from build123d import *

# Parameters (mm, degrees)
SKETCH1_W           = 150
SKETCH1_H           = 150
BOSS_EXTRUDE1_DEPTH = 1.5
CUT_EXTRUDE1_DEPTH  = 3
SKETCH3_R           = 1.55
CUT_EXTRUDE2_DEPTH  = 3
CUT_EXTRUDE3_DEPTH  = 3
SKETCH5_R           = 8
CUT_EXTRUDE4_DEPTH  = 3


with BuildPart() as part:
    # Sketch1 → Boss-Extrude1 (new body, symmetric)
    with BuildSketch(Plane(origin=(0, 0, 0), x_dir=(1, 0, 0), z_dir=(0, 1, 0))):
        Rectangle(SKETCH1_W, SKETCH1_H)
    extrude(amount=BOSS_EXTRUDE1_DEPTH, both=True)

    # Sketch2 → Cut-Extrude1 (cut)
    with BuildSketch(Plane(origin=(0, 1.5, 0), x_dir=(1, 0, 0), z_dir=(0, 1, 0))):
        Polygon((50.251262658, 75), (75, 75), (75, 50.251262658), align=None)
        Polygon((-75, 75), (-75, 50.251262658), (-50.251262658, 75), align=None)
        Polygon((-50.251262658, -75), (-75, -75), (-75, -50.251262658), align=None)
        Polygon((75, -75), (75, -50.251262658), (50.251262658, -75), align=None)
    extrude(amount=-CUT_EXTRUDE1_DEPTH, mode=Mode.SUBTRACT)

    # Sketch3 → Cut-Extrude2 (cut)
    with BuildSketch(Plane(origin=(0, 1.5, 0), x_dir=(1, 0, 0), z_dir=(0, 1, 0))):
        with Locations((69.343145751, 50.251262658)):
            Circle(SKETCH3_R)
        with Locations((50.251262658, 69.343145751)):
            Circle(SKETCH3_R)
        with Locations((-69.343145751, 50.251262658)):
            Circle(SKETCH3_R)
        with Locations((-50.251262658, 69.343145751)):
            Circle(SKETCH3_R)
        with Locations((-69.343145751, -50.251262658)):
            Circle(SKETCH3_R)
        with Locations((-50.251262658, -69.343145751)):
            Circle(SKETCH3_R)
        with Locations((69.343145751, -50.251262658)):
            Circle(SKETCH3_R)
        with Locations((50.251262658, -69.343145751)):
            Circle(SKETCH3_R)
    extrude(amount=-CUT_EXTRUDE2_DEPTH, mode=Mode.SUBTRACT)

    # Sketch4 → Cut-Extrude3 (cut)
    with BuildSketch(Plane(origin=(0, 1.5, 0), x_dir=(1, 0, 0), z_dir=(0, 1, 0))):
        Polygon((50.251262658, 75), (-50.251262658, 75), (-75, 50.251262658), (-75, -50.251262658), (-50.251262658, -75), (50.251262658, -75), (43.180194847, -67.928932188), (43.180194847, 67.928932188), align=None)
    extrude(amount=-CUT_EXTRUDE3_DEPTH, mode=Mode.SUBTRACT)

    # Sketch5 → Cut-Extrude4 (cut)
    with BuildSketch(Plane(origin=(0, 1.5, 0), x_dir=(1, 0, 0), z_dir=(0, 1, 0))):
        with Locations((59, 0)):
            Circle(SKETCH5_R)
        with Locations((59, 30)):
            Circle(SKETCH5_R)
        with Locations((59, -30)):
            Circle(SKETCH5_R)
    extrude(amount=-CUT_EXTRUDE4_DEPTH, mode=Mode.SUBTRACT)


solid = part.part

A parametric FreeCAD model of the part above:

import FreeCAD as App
import Part
import Sketcher

V = App.Vector
Q = App.Units.Quantity


def add_polygon(sketch, points):
    """Adds a closed chain of lines whose ends are joined by coincident constraints."""
    first, n = sketch.GeometryCount, len(points)
    for a, b in zip(points, points[1:] + points[:1]):
        sketch.addGeometry(Part.LineSegment(App.Vector(*a, 0), App.Vector(*b, 0)), False)
    for i in range(n):
        sketch.addConstraint(Sketcher.Constraint("Coincident", first + i, 2, first + (i + 1) % n, 1))

doc = App.newDocument("Part")
body = doc.addObject("PartDesign::Body", "Body")

# Sketch on XZ plane
sketch1 = body.newObject("Sketcher::SketchObject", "Sketch")
sketch1.AttachmentSupport = (doc.getObject("XZ_Plane"), [""])
sketch1.MapMode = "FlatFace"
add_polygon(sketch1, [(-75, -75), (-75, 75), (75, 75), (75, -75)])  # lines 0-3
sketch1.addConstraint([
    Sketcher.Constraint("Vertical", 0),
    Sketcher.Constraint("Horizontal", 1),
    Sketcher.Constraint("Vertical", 2),
    Sketcher.Constraint("Horizontal", 3),
    Sketcher.Constraint("Symmetric", 0, 2, 2, 2, -1, 1),
    Sketcher.Constraint("Equal", 3, 0),
    Sketcher.Constraint("DistanceX", 1, 1, 1, 2, Q("150 mm")),
])
pad1 = body.newObject("PartDesign::Pad", "Pad")
pad1.Profile = sketch1
pad1.Length = 3
pad1.Midplane = True

# Sketch on XZ plane
sketch2 = body.newObject("Sketcher::SketchObject", "Sketch001")
sketch2.AttachmentSupport = (doc.getObject("XZ_Plane"), [""])
sketch2.MapMode = "FlatFace"
sketch2.AttachmentOffset = App.Placement(V(0, 0, -1.5), App.Rotation())
add_polygon(sketch2, [(75, -75), (50, -75), (75, -50)])  # lines 0-2
add_polygon(sketch2, [(-75, -75), (-75, -50), (-50, -75)])  # lines 3-5
add_polygon(sketch2, [(-75, 75), (-50, 75), (-75, 50)])  # lines 6-8
add_polygon(sketch2, [(75, 75), (75, 50), (50, 75)])  # lines 9-11
sketch2.addConstraint([
    Sketcher.Constraint("Horizontal", 0),
    Sketcher.Constraint("Vertical", 2),
    Sketcher.Constraint("Vertical", 3),
    Sketcher.Constraint("Horizontal", 5),
    Sketcher.Constraint("Horizontal", 6),
    Sketcher.Constraint("Vertical", 8),
    Sketcher.Constraint("Vertical", 9),
    Sketcher.Constraint("Horizontal", 11),
    Sketcher.Constraint("Symmetric", 0, 2, 6, 2, -1, 1),
    Sketcher.Constraint("Symmetric", 1, 2, 7, 2, -1, 1),
    Sketcher.Constraint("Symmetric", 3, 2, 9, 2, -1, 1),
    Sketcher.Constraint("Symmetric", 4, 2, 10, 2, -1, 1),
    Sketcher.Constraint("Symmetric", 1, 2, 3, 2, -2),
    Sketcher.Constraint("Symmetric", 0, 2, 4, 2, -2),
    Sketcher.Constraint("Perpendicular", 1, 4),
    Sketcher.Constraint("Distance", 1, Q("35 mm")),
    Sketcher.Constraint("DistanceY", 0, 2, -1, 1, Q("75 mm")),
    Sketcher.Constraint("DistanceX", -1, 1, 1, 2, Q("75 mm")),
])
pocket1 = body.newObject("PartDesign::Pocket", "Pocket")
pocket1.Profile = sketch2
pocket1.Length = 3
pocket1.Reversed = True

# Sketch on XZ plane
sketch3 = body.newObject("Sketcher::SketchObject", "Sketch002")
sketch3.AttachmentSupport = (doc.getObject("XZ_Plane"), [""])
sketch3.MapMode = "FlatFace"
sketch3.AttachmentOffset = App.Placement(V(0, 0, -1.5), App.Rotation())
sketch3.addGeometry([
    Part.Circle(V(69.3, -50.3, 0), V(0, 0, 1), 1.6),  # 0
    Part.Circle(V(50.3, -69.3, 0), V(0, 0, 1), 1.6),  # 1
    Part.Circle(V(-69.3, -50.3, 0), V(0, 0, 1), 1.6),  # 2
    Part.Circle(V(-50.3, -69.3, 0), V(0, 0, 1), 1.6),  # 3
    Part.Circle(V(-69.3, 50.3, 0), V(0, 0, 1), 1.6),  # 4
    Part.Circle(V(-50.3, 69.3, 0), V(0, 0, 1), 1.6),  # 5
    Part.Circle(V(69.3, 50.3, 0), V(0, 0, 1), 1.6),  # 6
    Part.Circle(V(50.3, 69.3, 0), V(0, 0, 1), 1.6),  # 7
], False)
sketch3.addConstraint([
    Sketcher.Constraint("Equal", 0, 1),
    Sketcher.Constraint("Equal", 1, 2),
    Sketcher.Constraint("Equal", 2, 3),
    Sketcher.Constraint("Equal", 3, 4),
    Sketcher.Constraint("Equal", 4, 5),
    Sketcher.Constraint("Equal", 5, 6),
    Sketcher.Constraint("Equal", 6, 7),
    Sketcher.Constraint("Symmetric", 0, 3, 4, 3, -1, 1),
    Sketcher.Constraint("Symmetric", 1, 3, 5, 3, -1, 1),
    Sketcher.Constraint("Symmetric", 2, 3, 6, 3, -1, 1),
    Sketcher.Constraint("Symmetric", 3, 3, 7, 3, -1, 1),
    Sketcher.Constraint("Symmetric", 0, 3, 2, 3, -2),
    Sketcher.Constraint("Symmetric", 1, 3, 3, 3, -2),
    Sketcher.Constraint("Diameter", 0, Q("3.1 mm")),
    Sketcher.Constraint("DistanceX", 2, 3, 1, 3, Q("119.594408 mm")),
    Sketcher.Constraint("DistanceX", 2, 3, 0, 3, Q("138.686292 mm")),
    Sketcher.Constraint("DistanceY", 3, 3, 4, 3, Q("119.594408 mm")),
    Sketcher.Constraint("DistanceY", 3, 3, 5, 3, Q("138.686292 mm")),
])
pocket2 = body.newObject("PartDesign::Pocket", "Pocket001")
pocket2.Profile = sketch3
pocket2.Length = 3
pocket2.Reversed = True

# Sketch on XZ plane
sketch4 = body.newObject("Sketcher::SketchObject", "Sketch003")
sketch4.AttachmentSupport = (doc.getObject("XZ_Plane"), [""])
sketch4.MapMode = "FlatFace"
sketch4.AttachmentOffset = App.Placement(V(0, 0, -1.5), App.Rotation())
add_polygon(sketch4, [(50, -75), (-50, -75), (-75, -50), (-75, 50), (-50, 75), (50, 75), (43, 68), (43, -68)])  # lines 0-7
sketch4.addConstraint([
    Sketcher.Constraint("Horizontal", 0),
    Sketcher.Constraint("Vertical", 2),
    Sketcher.Constraint("Horizontal", 4),
    Sketcher.Constraint("Vertical", 6),
    Sketcher.Constraint("Symmetric", 0, 2, 4, 2, -1, 1),
    Sketcher.Constraint("Perpendicular", 1, 3),
    Sketcher.Constraint("Parallel", 3, 5),
    Sketcher.Constraint("Perpendicular", 5, 7),
    Sketcher.Constraint("Vertical", 0, 2, 3, 2),
    Sketcher.Constraint("Vertical", 4, 2, 7, 2),
    Sketcher.Constraint("Equal", 4, 2),
    Sketcher.Constraint("Equal", 1, 3),
    Sketcher.Constraint("Distance", 1, Q("35 mm")),
    Sketcher.Constraint("Distance", 5, Q("10 mm")),
    Sketcher.Constraint("DistanceY", 0, 2, -1, 1, Q("75 mm")),
])
pocket3 = body.newObject("PartDesign::Pocket", "Pocket002")
pocket3.Profile = sketch4
pocket3.Length = 3
pocket3.Reversed = True

# Sketch on XZ plane
sketch5 = body.newObject("Sketcher::SketchObject", "Sketch004")
sketch5.AttachmentSupport = (doc.getObject("XZ_Plane"), [""])
sketch5.MapMode = "FlatFace"
sketch5.AttachmentOffset = App.Placement(V(0, 0, -1.5), App.Rotation())
sketch5.addGeometry([
    Part.Circle(V(59, 0, 0), V(0, 0, 1), 8),
    Part.Circle(V(59, -30, 0), V(0, 0, 1), 8),
    Part.Circle(V(59, 30, 0), V(0, 0, 1), 8),
], False)
sketch5.addConstraint([
    Sketcher.Constraint("Equal", 0, 1),
    Sketcher.Constraint("Equal", 1, 2),
    Sketcher.Constraint("Symmetric", 1, 3, 2, 3, -1),
    Sketcher.Constraint("PointOnObject", 0, 3, -1),
    Sketcher.Constraint("Vertical", 0, 3, 1, 3),
    Sketcher.Constraint("Diameter", 0, Q("16 mm")),
    Sketcher.Constraint("DistanceX", -1, 1, 0, 3, Q("59 mm")),
    Sketcher.Constraint("DistanceY", 1, 3, -1, 1, Q("30 mm")),
])
pocket4 = body.newObject("PartDesign::Pocket", "Pocket003")
pocket4.Profile = sketch5
pocket4.Length = 3
pocket4.Reversed = True

doc.recompute()
